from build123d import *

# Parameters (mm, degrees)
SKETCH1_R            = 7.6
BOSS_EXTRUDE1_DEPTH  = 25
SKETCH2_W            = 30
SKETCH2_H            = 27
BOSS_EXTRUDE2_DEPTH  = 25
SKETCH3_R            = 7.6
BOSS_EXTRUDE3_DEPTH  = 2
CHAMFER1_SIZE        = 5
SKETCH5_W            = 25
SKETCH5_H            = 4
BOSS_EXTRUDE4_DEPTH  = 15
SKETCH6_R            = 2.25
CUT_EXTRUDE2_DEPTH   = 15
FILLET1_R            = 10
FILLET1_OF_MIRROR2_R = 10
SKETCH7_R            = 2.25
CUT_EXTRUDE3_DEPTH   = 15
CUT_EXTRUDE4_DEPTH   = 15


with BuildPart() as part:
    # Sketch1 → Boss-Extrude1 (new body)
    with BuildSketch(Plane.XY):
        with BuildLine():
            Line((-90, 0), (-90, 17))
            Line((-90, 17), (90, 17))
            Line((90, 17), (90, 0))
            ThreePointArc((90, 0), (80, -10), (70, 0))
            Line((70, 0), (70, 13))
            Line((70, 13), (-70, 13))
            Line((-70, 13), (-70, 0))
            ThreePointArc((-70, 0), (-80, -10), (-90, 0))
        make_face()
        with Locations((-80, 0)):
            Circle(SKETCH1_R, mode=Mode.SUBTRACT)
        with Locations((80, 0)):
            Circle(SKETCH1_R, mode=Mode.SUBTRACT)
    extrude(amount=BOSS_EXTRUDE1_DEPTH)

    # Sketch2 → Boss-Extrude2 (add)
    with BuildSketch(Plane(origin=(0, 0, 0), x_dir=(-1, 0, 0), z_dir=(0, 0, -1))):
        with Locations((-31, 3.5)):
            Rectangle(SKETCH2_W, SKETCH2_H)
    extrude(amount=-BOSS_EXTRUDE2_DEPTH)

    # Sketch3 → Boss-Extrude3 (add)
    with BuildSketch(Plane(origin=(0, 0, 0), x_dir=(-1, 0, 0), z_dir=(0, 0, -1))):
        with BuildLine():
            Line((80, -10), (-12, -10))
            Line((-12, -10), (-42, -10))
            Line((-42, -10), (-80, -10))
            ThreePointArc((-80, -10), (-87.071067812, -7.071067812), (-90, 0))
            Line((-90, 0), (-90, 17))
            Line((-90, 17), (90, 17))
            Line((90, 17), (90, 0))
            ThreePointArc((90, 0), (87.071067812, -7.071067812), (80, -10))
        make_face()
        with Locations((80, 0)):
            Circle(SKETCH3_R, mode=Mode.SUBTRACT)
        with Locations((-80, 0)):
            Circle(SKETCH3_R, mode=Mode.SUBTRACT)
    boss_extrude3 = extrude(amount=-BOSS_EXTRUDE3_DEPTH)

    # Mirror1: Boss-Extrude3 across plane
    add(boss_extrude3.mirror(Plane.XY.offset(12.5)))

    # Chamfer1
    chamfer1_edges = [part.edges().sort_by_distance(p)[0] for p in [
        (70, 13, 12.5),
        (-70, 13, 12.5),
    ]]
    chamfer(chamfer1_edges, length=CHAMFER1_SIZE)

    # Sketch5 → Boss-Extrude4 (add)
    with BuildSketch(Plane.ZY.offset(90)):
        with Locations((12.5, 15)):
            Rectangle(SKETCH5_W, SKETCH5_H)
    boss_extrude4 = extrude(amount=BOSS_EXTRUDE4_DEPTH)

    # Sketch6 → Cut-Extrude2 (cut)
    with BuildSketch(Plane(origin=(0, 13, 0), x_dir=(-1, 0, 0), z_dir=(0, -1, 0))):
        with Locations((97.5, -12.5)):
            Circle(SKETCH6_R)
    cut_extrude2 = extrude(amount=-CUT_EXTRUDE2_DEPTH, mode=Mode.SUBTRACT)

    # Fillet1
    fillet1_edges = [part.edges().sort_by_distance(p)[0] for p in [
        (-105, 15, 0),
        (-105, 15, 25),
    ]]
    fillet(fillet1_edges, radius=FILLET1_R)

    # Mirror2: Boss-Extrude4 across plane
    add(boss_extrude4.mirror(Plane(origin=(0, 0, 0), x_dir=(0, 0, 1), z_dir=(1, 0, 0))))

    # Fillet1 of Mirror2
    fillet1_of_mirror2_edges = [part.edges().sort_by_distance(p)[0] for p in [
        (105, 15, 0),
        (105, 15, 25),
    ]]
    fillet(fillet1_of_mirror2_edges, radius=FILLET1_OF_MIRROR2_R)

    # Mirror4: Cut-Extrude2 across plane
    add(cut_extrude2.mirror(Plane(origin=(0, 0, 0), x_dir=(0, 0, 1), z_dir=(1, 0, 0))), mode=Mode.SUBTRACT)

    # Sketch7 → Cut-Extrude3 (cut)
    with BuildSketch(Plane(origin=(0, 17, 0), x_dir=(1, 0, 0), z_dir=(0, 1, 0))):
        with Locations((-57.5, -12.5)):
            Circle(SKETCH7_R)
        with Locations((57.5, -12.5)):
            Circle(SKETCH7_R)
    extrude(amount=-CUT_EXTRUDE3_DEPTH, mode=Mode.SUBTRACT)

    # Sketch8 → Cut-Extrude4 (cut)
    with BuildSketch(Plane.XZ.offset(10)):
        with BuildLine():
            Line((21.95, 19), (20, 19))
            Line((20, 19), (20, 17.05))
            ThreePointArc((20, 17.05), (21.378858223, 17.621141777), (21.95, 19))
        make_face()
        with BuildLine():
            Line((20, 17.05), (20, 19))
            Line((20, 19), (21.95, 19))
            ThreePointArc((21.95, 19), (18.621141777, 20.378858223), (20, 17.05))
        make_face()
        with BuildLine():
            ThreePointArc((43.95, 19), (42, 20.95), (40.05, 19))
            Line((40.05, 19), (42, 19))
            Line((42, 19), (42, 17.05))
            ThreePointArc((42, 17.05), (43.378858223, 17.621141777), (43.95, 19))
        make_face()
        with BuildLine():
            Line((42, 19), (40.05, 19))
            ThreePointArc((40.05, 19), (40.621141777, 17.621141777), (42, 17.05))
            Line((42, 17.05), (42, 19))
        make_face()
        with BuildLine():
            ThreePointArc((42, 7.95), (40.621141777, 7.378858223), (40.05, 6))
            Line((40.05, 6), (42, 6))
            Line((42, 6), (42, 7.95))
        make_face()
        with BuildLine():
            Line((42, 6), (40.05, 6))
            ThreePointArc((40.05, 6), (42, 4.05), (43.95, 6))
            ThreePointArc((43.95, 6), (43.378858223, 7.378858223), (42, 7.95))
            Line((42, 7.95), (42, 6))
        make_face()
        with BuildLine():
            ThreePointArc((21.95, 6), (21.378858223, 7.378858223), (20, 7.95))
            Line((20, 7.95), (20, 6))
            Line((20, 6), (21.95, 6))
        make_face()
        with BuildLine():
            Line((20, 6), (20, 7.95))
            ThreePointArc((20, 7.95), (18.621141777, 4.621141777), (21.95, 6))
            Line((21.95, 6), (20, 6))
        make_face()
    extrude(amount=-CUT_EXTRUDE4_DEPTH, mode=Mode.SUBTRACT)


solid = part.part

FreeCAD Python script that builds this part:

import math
import FreeCAD as App
import Part
import Sketcher

V = App.Vector


def edges_at(feature, points):
    """Names of the edges that pass closest to the given points."""
    edges = feature.Shape.Edges
    near = lambda p: min(range(len(edges)), key=lambda i: edges[i].distToShape(Part.Vertex(*p))[0])
    return sorted({f"Edge{near(p) + 1}" for p in points})

doc = App.newDocument("Part")
body = doc.addObject("PartDesign::Body", "Body")

# Sketch on XY plane
sketch1 = body.newObject("Sketcher::SketchObject", "Sketch")
sketch1.AttachmentSupport = (doc.getObject("XY_Plane"), [""])
sketch1.MapMode = "FlatFace"
sketch1.addGeometry([
    Part.LineSegment(V(-90, 17, 0), V(-90, 0, 0)),  # 0
    Part.ArcOfCircle(Part.Circle(V(-80, 0, 0), V(0, 0, 1), 10), math.radians(180), math.radians(360)),  # 1
    Part.LineSegment(V(-70, 0, 0), V(-70, 13, 0)),  # 2
    Part.LineSegment(V(-70, 13, 0), V(70, 13, 0)),  # 3
    Part.LineSegment(V(70, 13, 0), V(70, 0, 0)),  # 4
    Part.ArcOfCircle(Part.Circle(V(80, 0, 0), V(0, 0, 1), 10), math.radians(180), math.radians(360)),  # 5
    Part.LineSegment(V(90, 0, 0), V(90, 17, 0)),  # 6
    Part.LineSegment(V(90, 17, 0), V(-90, 17, 0)),  # 7
    Part.Circle(V(80, 0, 0), V(0, 0, 1), 8),  # 8
    Part.Circle(V(-80, 0, 0), V(0, 0, 1), 8),  # 9
], False)
sketch1.addConstraint([
    Sketcher.Constraint("Tangent", 0, 2, 1, 1),
    Sketcher.Constraint("Tangent", 1, 2, 2, 1),
    Sketcher.Constraint("Coincident", 2, 2, 3, 1),
    Sketcher.Constraint("Coincident", 3, 2, 4, 1),
    Sketcher.Constraint("Tangent", 4, 2, 5, 1),
    Sketcher.Constraint("Tangent", 5, 2, 6, 1),
    Sketcher.Constraint("Coincident", 6, 2, 7, 1),
    Sketcher.Constraint("Coincident", 7, 2, 0, 1),
    Sketcher.Constraint("Vertical", 0),
    Sketcher.Constraint("Vertical", 2),
    Sketcher.Constraint("Horizontal", 3),
    Sketcher.Constraint("Vertical", 4),
    Sketcher.Constraint("Vertical", 6),
    Sketcher.Constraint("Horizontal", 7),
    Sketcher.Constraint("Coincident", 8, 3, 5, 3),
    Sketcher.Constraint("Coincident", 9, 3, 1, 3),
    Sketcher.Constraint("Equal", 1, 5),
    Sketcher.Constraint("Equal", 8, 9),
    Sketcher.Constraint("Symmetric", 1, 3, 5, 3, -1, 1),
    Sketcher.Constraint("PointOnObject", 1, 3, -1),
    Sketcher.Constraint("Radius", 1, 10.0),
    Sketcher.Constraint("Diameter", 8, 15.2),
    Sketcher.Constraint("DistanceX", 3, 1, 3, 2, 140.0),
    Sketcher.Constraint("DistanceY", 0, 2, 0, 1, 17.0),
    Sketcher.Constraint("DistanceY", 2, 1, 2, 2, 13.0),
])
pad1 = body.newObject("PartDesign::Pad", "Pad")
pad1.Profile = sketch1
pad1.Length = 25

# Sketch on XY plane
sketch2 = body.newObject("Sketcher::SketchObject", "Sketch001")
sketch2.AttachmentSupport = (doc.getObject("XY_Plane"), [""])
sketch2.MapMode = "FlatFace"
sketch2.addGeometry([
    Part.LineSegment(V(46, 17, 0), V(46, -10, 0)),
    Part.LineSegment(V(46, -10, 0), V(16, -10, 0)),
    Part.LineSegment(V(16, -10, 0), V(16, 17, 0)),
    Part.LineSegment(V(16, 17, 0), V(46, 17, 0)),
], False)
sketch2.addConstraint([
    Sketcher.Constraint("Coincident", 0, 2, 1, 1),
    Sketcher.Constraint("Coincident", 1, 2, 2, 1),
    Sketcher.Constraint("Coincident", 2, 2, 3, 1),
    Sketcher.Constraint("Coincident", 3, 2, 0, 1),
    Sketcher.Constraint("Vertical", 0),
    Sketcher.Constraint("Horizontal", 1),
    Sketcher.Constraint("Vertical", 2),
    Sketcher.Constraint("Horizontal", 3),
    Sketcher.Constraint("DistanceX", 1, 2, 1, 1, 30.0),
    Sketcher.Constraint("DistanceY", 0, 2, 0, 1, 27.0),
    Sketcher.Constraint("DistanceX", -1, 1, 0, 2, 46.0),
    Sketcher.Constraint("DistanceY", 0, 2, -1, 1, 10.0),
])
pad2 = body.newObject("PartDesign::Pad", "Pad001")
pad2.Profile = sketch2
pad2.Length = 25

# Sketch on XY plane
sketch3 = body.newObject("Sketcher::SketchObject", "Sketch002")
sketch3.AttachmentSupport = (doc.getObject("XY_Plane"), [""])
sketch3.MapMode = "FlatFace"
sketch3.addGeometry([
    Part.LineSegment(V(80, -10, 0), V(-80, -10, 0)),  # 0
    Part.ArcOfCircle(Part.Circle(V(-80, 0, 0), V(0, 0, 1), 10), math.radians(180), math.radians(270)),  # 1
    Part.LineSegment(V(-90, 0, 0), V(-90, 17, 0)),  # 2
    Part.LineSegment(V(-90, 17, 0), V(90, 17, 0)),  # 3
    Part.LineSegment(V(90, 17, 0), V(90, 0, 0)),  # 4
    Part.ArcOfCircle(Part.Circle(V(80, 0, 0), V(0, 0, 1), 10), math.radians(-90), math.radians(0)),  # 5
    Part.Circle(V(-80, 0, 0), V(0, 0, 1), 8),  # 6
    Part.Circle(V(80, 0, 0), V(0, 0, 1), 8),  # 7
], False)
sketch3.addConstraint([
    Sketcher.Constraint("Tangent", 0, 2, 1, 2),
    Sketcher.Constraint("Tangent", 1, 1, 2, 1),
    Sketcher.Constraint("Coincident", 2, 2, 3, 1),
    Sketcher.Constraint("Coincident", 3, 2, 4, 1),
    Sketcher.Constraint("Tangent", 4, 2, 5, 2),
    Sketcher.Constraint("Tangent", 5, 1, 0, 1),
    Sketcher.Constraint("Horizontal", 0),
    Sketcher.Constraint("Vertical", 2),
    Sketcher.Constraint("Horizontal", 3),
    Sketcher.Constraint("Vertical", 4),
    Sketcher.Constraint("Coincident", 6, 3, 1, 3),
    Sketcher.Constraint("Coincident", 7, 3, 5, 3),
    Sketcher.Constraint("Equal", 1, 5),
    Sketcher.Constraint("Equal", 6, 7),
    Sketcher.Constraint("Symmetric", 1, 3, 5, 3, -1, 1),
    Sketcher.Constraint("Radius", 1, 10.0),
    Sketcher.Constraint("Diameter", 6, 15.2),
    Sketcher.Constraint("DistanceX", 0, 2, 0, 1, 160.0),
    Sketcher.Constraint("DistanceY", 2, 1, 2, 2, 17.0),
])
pad3 = body.newObject("PartDesign::Pad", "Pad002")
pad3.Profile = sketch3
pad3.Length = 2
doc.recompute()

datumplane = body.newObject("PartDesign::Plane", "DatumPlane")
datumplane.AttachmentSupport = (doc.getObject("XY_Plane"), [""])
datumplane.MapMode = "FlatFace"
datumplane.AttachmentOffset = App.Placement(V(0, 0, 12.5), App.Rotation())
mirrored = body.newObject("PartDesign::Mirrored", "Mirrored")
mirrored.Originals = [pad3]
mirrored.MirrorPlane = (datumplane, [""])
body.Tip = mirrored
doc.recompute()

chamfer = body.newObject("PartDesign::Chamfer", "Chamfer")
chamfer.Base = (mirrored, edges_at(mirrored, [(70, 13, 12.5), (-70, 13, 12.5)]))
chamfer.Size = 5

# Sketch on YZ plane
sketch4 = body.newObject("Sketcher::SketchObject", "Sketch003")
sketch4.AttachmentSupport = (doc.getObject("YZ_Plane"), [""])
sketch4.MapMode = "FlatFace"
sketch4.AttachmentOffset = App.Placement(V(0, 0, -90), App.Rotation())
sketch4.addGeometry([
    Part.LineSegment(V(17, 0, 0), V(13, 0, 0)),
    Part.LineSegment(V(13, 0, 0), V(13, 25, 0)),
    Part.LineSegment(V(13, 25, 0), V(17, 25, 0)),
    Part.LineSegment(V(17, 25, 0), V(17, 0, 0)),
], False)
sketch4.addConstraint([
    Sketcher.Constraint("Coincident", 0, 2, 1, 1),
    Sketcher.Constraint("Coincident", 1, 2, 2, 1),
    Sketcher.Constraint("Coincident", 2, 2, 3, 1),
    Sketcher.Constraint("Coincident", 3, 2, 0, 1),
    Sketcher.Constraint("Horizontal", 0),
    Sketcher.Constraint("Vertical", 1),
    Sketcher.Constraint("Horizontal", 2),
    Sketcher.Constraint("Vertical", 3),
    Sketcher.Constraint("PointOnObject", 0, 2, -1),
    Sketcher.Constraint("DistanceX", 0, 2, 0, 1, 4.0),
    Sketcher.Constraint("DistanceY", 1, 1, 1, 2, 25.0),
    Sketcher.Constraint("DistanceX", -1, 1, 0, 2, 13.0),
])
pad4 = body.newObject("PartDesign::Pad", "Pad003")
pad4.Profile = sketch4
pad4.Length = 15
pad4.Reversed = True

# Sketch on XZ plane
sketch5 = body.newObject("Sketcher::SketchObject", "Sketch004")
sketch5.AttachmentSupport = (doc.getObject("XZ_Plane"), [""])
sketch5.MapMode = "FlatFace"
sketch5.AttachmentOffset = App.Placement(V(0, 0, -13), App.Rotation())
sketch5.addGeometry(Part.Circle(V(-97.5, 12.5, 0), V(0, 0, 1), 2.2), False)
sketch5.addConstraint([
    Sketcher.Constraint("Diameter", 0, 4.5),
    Sketcher.Constraint("DistanceX", 0, 3, -1, 1, 97.5),
    Sketcher.Constraint("DistanceY", -1, 1, 0, 3, 12.5),
])
pocket1 = body.newObject("PartDesign::Pocket", "Pocket")
pocket1.Profile = sketch5
pocket1.Length = 15
doc.recompute()

fillet = body.newObject("PartDesign::Fillet", "Fillet")
fillet.Base = (pocket1, edges_at(pocket1, [(-105, 15, 0), (-105, 15, 25)]))
fillet.Radius = 10
doc.recompute()

mirrored2 = body.newObject("PartDesign::Mirrored", "Mirrored001")
mirrored2.Originals = [pad4]
mirrored2.MirrorPlane = (doc.getObject("YZ_Plane"), [""])
body.Tip = mirrored2
doc.recompute()

fillet2 = body.newObject("PartDesign::Fillet", "Fillet001")
fillet2.Base = (mirrored2, edges_at(mirrored2, [(105, 15, 0), (105, 15, 25)]))
fillet2.Radius = 10
doc.recompute()

mirrored3 = body.newObject("PartDesign::Mirrored", "Mirrored002")
mirrored3.Originals = [pocket1]
mirrored3.MirrorPlane = (doc.getObject("YZ_Plane"), [""])
body.Tip = mirrored3

# Sketch on XZ plane
sketch6 = body.newObject("Sketcher::SketchObject", "Sketch005")
sketch6.AttachmentSupport = (doc.getObject("XZ_Plane"), [""])
sketch6.MapMode = "FlatFace"
sketch6.AttachmentOffset = App.Placement(V(0, 0, -17), App.Rotation())
sketch6.addGeometry([
    Part.Circle(V(-57.5, 12.5, 0), V(0, 0, 1), 2.2),
    Part.Circle(V(57.5, 12.5, 0), V(0, 0, 1), 2.2),
], False)
sketch6.addConstraint([
    Sketcher.Constraint("Equal", 0, 1),
    Sketcher.Constraint("Symmetric", 0, 3, 1, 3, -2),
    Sketcher.Constraint("Diameter", 0, 4.5),
    Sketcher.Constraint("DistanceX", 0, 3, 1, 3, 115.0),
    Sketcher.Constraint("DistanceY", -1, 1, 0, 3, 12.5),
])
pocket2 = body.newObject("PartDesign::Pocket", "Pocket001")
pocket2.Profile = sketch6
pocket2.Length = 15
pocket2.Reversed = True

# Sketch on XZ plane
sketch7 = body.newObject("Sketcher::SketchObject", "Sketch006")
sketch7.AttachmentSupport = (doc.getObject("XZ_Plane"), [""])
sketch7.MapMode = "FlatFace"
sketch7.AttachmentOffset = App.Placement(V(0, 0, 10), App.Rotation())
sketch7.addGeometry([
    Part.ArcOfCircle(Part.Circle(V(20, 19, 0), V(0, 0, 1), 2), math.radians(-90), math.radians(0)),  # 0
    Part.ArcOfCircle(Part.Circle(V(20, 19, 0), V(0, 0, 1), 1.9), math.radians(0), math.radians(270)),  # 1
    Part.ArcOfCircle(Part.Circle(V(42, 19, 0), V(0, 0, 1), 1.9), math.radians(0), math.radians(180)),  # 2
    Part.ArcOfCircle(Part.Circle(V(42, 19, 0), V(0, 0, 1), 2), math.radians(-180), math.radians(-90)),  # 3
    Part.ArcOfCircle(Part.Circle(V(42, 19, 0), V(0, 0, 1), 2), math.radians(-90), math.radians(0)),  # 4
    Part.ArcOfCircle(Part.Circle(V(42, 6, 0), V(0, 0, 1), 2), math.radians(90), math.radians(180)),  # 5
    Part.ArcOfCircle(Part.Circle(V(42, 6, 0), V(0, 0, 1), 1.9), math.radians(180), math.radians(360)),  # 6
    Part.ArcOfCircle(Part.Circle(V(42, 6, 0), V(0, 0, 1), 2), math.radians(0), math.radians(90)),  # 7
    Part.ArcOfCircle(Part.Circle(V(20, 6, 0), V(0, 0, 1), 2), math.radians(0), math.radians(90)),  # 8
    Part.ArcOfCircle(Part.Circle(V(20, 6, 0), V(0, 0, 1), 1.9), math.radians(90), math.radians(360)),  # 9
], False)
sketch7.addConstraint([
    Sketcher.Constraint("Tangent", 0, 1, 1, 2),
    Sketcher.Constraint("Coincident", 1, 1, 0, 2),
    Sketcher.Constraint("Tangent", 2, 2, 3, 1),
    Sketcher.Constraint("Tangent", 3, 2, 4, 1),
    Sketcher.Constraint("Tangent", 4, 2, 2, 1),
    Sketcher.Constraint("Tangent", 5, 2, 6, 1),
    Sketcher.Constraint("Tangent", 6, 2, 7, 1),
    Sketcher.Constraint("Tangent", 7, 2, 5, 1),
    Sketcher.Constraint("Tangent", 8, 1, 9, 2),
    Sketcher.Constraint("Coincident", 9, 1, 8, 2),
    Sketcher.Constraint("Equal", 1, 2),
    Sketcher.Constraint("Equal", 4, 5),
    Sketcher.Constraint("Equal", 7, 8),
    Sketcher.Constraint("Horizontal", 1, 3, 2, 3),
    Sketcher.Constraint("Horizontal", 7, 3, 8, 3),
    Sketcher.Constraint("Horizontal", 4, 3, 1, 1),
    Sketcher.Constraint("Horizontal", 1, 1, 2, 2),
    Sketcher.Constraint("Horizontal", 2, 2, 4, 2),
    Sketcher.Constraint("Horizontal", 9, 3, 5, 2),
    Sketcher.Constraint("Horizontal", 5, 2, 6, 2),
    Sketcher.Constraint("Horizontal", 6, 2, 8, 1),
    Sketcher.Constraint("Vertical", 4, 3, 5, 3),
    Sketcher.Constraint("Vertical", 1, 3, 8, 3),
    Sketcher.Constraint("Vertical", 9, 3, 0, 1),
    Sketcher.Constraint("Vertical", 7, 3, 3, 2),
    Sketcher.Constraint("Vertical", 3, 2, 7, 2),
    Sketcher.Constraint("Vertical", 0, 1, 9, 1),
    Sketcher.Constraint("Radius", 0, 1.95),
    Sketcher.Constraint("DistanceX", -1, 1, 0, 3, 20.0),
    Sketcher.Constraint("DistanceY", -1, 1, 0, 3, 19.0),
    Sketcher.Constraint("DistanceX", -1, 1, 2, 3, 42.0),
    Sketcher.Constraint("DistanceY", -1, 1, 5, 3, 6.0),
])
pocket3 = body.newObject("PartDesign::Pocket", "Pocket002")
pocket3.Profile = sketch7
pocket3.Length = 15

doc.recompute()
